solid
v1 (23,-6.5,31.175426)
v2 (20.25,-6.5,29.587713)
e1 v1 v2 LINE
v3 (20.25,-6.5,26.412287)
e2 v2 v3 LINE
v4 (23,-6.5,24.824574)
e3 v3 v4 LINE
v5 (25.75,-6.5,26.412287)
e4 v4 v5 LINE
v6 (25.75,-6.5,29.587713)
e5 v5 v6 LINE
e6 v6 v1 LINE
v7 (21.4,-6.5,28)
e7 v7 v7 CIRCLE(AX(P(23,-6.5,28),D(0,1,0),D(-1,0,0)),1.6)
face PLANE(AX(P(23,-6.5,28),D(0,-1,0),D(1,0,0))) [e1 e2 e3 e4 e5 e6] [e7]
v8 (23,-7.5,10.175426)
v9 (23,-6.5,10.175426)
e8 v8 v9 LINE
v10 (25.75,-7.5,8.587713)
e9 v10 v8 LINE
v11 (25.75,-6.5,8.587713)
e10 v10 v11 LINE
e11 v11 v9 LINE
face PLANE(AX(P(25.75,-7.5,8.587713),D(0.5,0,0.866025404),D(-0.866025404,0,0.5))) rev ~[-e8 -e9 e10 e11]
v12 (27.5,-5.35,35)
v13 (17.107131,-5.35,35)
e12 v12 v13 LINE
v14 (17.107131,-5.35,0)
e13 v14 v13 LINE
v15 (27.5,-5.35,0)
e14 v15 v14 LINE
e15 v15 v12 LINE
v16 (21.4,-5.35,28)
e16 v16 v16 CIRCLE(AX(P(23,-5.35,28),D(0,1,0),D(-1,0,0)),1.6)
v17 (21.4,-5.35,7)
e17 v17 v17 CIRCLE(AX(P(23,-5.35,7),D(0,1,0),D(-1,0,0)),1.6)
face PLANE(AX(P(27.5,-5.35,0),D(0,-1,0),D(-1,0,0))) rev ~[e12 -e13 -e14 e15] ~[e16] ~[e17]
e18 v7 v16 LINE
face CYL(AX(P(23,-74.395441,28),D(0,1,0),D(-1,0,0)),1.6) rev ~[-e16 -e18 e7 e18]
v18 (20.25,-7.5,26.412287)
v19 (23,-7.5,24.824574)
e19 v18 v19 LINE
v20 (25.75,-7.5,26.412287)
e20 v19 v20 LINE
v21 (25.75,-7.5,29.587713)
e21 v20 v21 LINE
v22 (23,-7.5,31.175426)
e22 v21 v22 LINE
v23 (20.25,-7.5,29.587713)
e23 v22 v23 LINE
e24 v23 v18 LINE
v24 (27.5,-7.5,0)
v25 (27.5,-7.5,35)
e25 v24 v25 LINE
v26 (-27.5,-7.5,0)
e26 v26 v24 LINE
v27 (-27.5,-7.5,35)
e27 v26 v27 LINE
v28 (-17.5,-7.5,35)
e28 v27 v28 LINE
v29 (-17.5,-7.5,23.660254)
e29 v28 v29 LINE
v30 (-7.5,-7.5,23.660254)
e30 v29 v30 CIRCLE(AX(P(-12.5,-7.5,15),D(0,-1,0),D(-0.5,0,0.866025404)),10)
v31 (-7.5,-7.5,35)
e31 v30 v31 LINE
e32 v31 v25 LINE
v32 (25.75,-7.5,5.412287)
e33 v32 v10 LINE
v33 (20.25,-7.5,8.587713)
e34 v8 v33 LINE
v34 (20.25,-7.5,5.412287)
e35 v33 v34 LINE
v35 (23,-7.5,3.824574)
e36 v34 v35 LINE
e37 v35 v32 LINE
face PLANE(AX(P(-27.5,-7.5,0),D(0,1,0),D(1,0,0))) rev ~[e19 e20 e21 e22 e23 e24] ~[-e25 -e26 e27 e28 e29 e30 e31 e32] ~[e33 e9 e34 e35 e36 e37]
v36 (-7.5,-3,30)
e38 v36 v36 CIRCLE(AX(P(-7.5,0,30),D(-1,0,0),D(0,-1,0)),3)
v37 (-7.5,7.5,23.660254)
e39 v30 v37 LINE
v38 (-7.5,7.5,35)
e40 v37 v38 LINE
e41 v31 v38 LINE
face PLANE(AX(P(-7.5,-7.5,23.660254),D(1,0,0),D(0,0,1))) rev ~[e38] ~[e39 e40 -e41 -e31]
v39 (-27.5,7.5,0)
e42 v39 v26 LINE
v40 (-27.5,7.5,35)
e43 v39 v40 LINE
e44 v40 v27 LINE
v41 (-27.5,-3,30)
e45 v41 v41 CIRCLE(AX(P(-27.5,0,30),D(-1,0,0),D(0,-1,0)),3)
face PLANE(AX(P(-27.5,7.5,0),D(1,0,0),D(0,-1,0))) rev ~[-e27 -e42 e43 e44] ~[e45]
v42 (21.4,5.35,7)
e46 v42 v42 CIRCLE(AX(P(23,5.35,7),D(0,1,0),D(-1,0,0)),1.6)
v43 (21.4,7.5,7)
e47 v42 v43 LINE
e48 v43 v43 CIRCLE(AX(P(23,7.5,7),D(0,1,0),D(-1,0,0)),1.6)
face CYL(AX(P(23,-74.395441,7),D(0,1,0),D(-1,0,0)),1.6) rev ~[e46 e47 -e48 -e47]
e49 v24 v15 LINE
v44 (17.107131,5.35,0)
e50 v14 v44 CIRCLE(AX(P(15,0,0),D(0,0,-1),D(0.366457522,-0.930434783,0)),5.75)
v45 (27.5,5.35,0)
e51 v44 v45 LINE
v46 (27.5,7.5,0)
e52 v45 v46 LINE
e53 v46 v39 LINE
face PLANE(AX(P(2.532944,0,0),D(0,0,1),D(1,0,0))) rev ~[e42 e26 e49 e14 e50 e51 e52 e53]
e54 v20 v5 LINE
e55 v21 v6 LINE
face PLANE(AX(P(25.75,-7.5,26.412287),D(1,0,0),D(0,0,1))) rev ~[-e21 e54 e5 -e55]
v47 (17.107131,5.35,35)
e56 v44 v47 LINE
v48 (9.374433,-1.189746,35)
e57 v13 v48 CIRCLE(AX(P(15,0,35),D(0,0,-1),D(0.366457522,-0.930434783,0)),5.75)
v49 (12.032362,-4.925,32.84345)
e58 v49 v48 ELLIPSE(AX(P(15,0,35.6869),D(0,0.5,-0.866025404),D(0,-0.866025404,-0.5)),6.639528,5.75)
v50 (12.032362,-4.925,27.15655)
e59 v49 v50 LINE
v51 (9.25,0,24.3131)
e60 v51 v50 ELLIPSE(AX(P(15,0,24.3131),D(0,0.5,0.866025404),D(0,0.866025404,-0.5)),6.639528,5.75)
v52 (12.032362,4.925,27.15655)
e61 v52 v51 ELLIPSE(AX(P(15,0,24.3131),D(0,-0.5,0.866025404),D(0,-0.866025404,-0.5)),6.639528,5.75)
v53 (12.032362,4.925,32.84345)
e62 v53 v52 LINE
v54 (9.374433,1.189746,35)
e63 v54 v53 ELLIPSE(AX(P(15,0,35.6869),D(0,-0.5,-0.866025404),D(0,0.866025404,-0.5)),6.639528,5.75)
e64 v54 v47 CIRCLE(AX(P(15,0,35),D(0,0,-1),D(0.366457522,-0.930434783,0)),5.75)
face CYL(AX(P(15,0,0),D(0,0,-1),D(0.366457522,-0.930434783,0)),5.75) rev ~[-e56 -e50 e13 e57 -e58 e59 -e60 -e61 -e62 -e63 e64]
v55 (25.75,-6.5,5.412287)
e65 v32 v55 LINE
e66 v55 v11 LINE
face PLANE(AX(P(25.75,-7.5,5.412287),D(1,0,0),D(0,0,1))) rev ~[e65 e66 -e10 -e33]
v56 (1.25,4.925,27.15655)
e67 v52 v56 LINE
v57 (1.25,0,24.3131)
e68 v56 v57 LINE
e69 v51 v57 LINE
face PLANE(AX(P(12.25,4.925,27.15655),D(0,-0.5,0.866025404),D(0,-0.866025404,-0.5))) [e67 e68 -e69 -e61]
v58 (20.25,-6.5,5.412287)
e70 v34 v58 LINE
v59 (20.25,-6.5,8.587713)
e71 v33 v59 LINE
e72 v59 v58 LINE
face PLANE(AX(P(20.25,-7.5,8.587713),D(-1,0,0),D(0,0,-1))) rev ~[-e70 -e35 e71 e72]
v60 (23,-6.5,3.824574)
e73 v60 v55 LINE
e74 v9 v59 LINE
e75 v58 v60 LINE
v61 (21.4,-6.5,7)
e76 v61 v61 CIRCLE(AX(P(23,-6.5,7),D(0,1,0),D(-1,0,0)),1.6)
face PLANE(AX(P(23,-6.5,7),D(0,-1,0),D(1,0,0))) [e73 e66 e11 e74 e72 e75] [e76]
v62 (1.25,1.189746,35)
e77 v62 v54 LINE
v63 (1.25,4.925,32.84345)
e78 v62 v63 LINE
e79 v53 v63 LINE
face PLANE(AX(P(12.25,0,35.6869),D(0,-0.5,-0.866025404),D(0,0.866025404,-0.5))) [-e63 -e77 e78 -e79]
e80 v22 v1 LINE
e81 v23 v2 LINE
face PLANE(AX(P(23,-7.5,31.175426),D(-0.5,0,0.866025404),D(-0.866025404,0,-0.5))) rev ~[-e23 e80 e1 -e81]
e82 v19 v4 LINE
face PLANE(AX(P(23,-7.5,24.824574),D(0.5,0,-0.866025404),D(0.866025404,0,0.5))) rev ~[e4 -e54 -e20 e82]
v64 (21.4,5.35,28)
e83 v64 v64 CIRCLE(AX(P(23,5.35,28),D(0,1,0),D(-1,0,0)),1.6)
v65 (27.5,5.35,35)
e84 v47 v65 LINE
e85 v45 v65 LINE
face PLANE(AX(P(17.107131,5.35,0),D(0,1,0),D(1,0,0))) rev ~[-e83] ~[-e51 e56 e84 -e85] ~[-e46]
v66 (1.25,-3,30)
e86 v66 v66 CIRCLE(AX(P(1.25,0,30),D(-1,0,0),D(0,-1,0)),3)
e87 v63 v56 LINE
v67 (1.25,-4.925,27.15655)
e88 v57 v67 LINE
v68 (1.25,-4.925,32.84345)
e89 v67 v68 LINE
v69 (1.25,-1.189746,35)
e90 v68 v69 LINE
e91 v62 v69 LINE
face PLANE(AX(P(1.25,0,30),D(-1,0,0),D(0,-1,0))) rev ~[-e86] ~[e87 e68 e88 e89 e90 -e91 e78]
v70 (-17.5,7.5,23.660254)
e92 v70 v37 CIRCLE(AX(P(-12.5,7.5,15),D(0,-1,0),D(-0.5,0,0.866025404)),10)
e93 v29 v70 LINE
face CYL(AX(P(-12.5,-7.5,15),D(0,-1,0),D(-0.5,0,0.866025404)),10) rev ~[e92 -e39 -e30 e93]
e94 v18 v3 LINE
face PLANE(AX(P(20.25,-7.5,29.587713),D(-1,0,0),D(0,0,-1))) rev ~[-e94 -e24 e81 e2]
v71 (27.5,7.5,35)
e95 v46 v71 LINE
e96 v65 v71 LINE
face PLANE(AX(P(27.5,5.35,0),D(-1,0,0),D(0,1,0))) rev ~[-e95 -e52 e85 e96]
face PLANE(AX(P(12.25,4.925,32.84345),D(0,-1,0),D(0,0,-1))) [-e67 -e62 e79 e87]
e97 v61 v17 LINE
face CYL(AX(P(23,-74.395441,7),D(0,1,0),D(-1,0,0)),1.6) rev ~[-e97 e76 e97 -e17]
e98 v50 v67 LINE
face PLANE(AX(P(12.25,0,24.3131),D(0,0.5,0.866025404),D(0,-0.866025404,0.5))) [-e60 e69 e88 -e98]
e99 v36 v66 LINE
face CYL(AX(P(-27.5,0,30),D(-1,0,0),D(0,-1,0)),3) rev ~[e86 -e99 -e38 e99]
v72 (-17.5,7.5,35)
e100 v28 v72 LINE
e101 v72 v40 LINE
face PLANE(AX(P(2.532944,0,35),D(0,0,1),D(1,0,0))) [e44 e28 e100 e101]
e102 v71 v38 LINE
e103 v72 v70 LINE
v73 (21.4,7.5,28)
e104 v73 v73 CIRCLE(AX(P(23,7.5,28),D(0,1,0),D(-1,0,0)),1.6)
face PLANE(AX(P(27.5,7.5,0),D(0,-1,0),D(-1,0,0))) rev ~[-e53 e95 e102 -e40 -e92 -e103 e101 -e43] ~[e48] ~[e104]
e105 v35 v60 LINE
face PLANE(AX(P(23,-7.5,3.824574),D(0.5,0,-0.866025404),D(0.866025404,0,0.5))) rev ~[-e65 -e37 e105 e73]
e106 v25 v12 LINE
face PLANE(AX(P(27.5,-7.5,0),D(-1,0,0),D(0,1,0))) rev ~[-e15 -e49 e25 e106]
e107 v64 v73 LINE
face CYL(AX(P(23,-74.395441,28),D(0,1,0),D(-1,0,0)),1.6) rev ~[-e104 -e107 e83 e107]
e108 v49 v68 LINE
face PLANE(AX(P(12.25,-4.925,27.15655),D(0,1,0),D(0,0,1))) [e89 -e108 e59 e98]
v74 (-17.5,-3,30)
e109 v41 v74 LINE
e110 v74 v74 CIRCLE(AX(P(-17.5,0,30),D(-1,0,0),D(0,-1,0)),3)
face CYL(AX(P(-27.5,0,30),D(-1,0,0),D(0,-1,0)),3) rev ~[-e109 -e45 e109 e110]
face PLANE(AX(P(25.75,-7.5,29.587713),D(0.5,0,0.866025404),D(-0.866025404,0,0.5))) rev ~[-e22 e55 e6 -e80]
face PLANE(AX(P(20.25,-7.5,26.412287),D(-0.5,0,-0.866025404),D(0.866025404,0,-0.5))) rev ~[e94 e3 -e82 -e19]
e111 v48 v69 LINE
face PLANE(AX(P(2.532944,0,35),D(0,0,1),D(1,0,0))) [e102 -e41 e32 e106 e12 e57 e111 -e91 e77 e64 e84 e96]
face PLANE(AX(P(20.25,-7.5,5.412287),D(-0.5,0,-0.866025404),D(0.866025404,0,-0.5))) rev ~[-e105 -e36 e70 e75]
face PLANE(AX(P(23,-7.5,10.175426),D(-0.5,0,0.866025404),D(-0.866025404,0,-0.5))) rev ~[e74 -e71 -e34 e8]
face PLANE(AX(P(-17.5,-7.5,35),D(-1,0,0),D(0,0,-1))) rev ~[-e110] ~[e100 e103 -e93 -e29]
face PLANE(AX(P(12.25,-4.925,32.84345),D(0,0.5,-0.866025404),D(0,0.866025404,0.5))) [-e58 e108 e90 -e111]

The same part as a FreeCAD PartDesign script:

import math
import FreeCAD as App
import Part
import Sketcher

V = App.Vector
Q = App.Units.Quantity

doc = App.newDocument("Part")
body = doc.addObject("PartDesign::Body", "Body")

# Sketch on XY plane
sketch1 = body.newObject("Sketcher::SketchObject", "Sketch")
sketch1.AttachmentSupport = (doc.getObject("XY_Plane"), [""])
sketch1.MapMode = "FlatFace"
sketch1.addGeometry([
    Part.LineSegment(V(27.5, 5.3, 0), V(27.5, 7.5, 0)),  # 0
    Part.LineSegment(V(27.5, 7.5, 0), V(-27.5, 7.5, 0)),  # 1
    Part.LineSegment(V(-27.5, 7.5, 0), V(-27.5, -7.5, 0)),  # 2
    Part.LineSegment(V(-27.5, -7.5, 0), V(27.5, -7.5, 0)),  # 3
    Part.LineSegment(V(27.5, -7.5, 0), V(27.5, -5.3, 0)),  # 4
    Part.LineSegment(V(27.5, -5.3, 0), V(17.1, -5.3, 0)),  # 5
    Part.ArcOfCircle(Part.Circle(V(15, 0, 0), V(0, 0, 1), 5.8), math.radians(69), math.radians(291)),  # 6
    Part.LineSegment(V(17.1, 5.3, 0), V(27.5, 5.3, 0)),  # 7
], False)
sketch1.addConstraint([
    Sketcher.Constraint("Coincident", 0, 2, 1, 1),
    Sketcher.Constraint("Coincident", 1, 2, 2, 1),
    Sketcher.Constraint("Coincident", 2, 2, 3, 1),
    Sketcher.Constraint("Coincident", 3, 2, 4, 1),
    Sketcher.Constraint("Coincident", 4, 2, 5, 1),
    Sketcher.Constraint("Coincident", 5, 2, 6, 2),
    Sketcher.Constraint("Coincident", 6, 1, 7, 1),
    Sketcher.Constraint("Coincident", 7, 2, 0, 1),
    Sketcher.Constraint("Vertical", 0),
    Sketcher.Constraint("Horizontal", 1),
    Sketcher.Constraint("Vertical", 2),
    Sketcher.Constraint("Horizontal", 3),
    Sketcher.Constraint("Vertical", 4),
    Sketcher.Constraint("Horizontal", 5),
    Sketcher.Constraint("Horizontal", 7),
    Sketcher.Constraint("Symmetric", 0, 2, 2, 2, -1, 1),
    Sketcher.Constraint("Symmetric", 5, 2, 6, 1, -1),
    Sketcher.Constraint("Vertical", 0, 2, 3, 2),
    Sketcher.Constraint("DistanceX", 1, 2, 1, 1, Q("55 mm")),
    Sketcher.Constraint("DistanceY", 2, 2, 2, 1, Q("15 mm")),
    Sketcher.Constraint("Radius", 6, Q("5.75 mm")),
    Sketcher.Constraint("DistanceX", -1, 1, 6, 3, Q("15 mm")),
    Sketcher.Constraint("DistanceY", 0, 1, 0, 2, Q("2.15 mm")),
])
pad1 = body.newObject("PartDesign::Pad", "Pad")
pad1.Profile = sketch1
pad1.Length = 35

# Sketch on XZ plane
sketch2 = body.newObject("Sketcher::SketchObject", "Sketch001")
sketch2.AttachmentSupport = (doc.getObject("XZ_Plane"), [""])
sketch2.MapMode = "FlatFace"
sketch2.AttachmentOffset = App.Placement(V(0, 0, 7.5), App.Rotation())
sketch2.addGeometry([
    Part.LineSegment(V(-18, 35, 0), V(-18, 24, 0)),
    Part.ArcOfCircle(Part.Circle(V(-12, 15, 0), V(0, 0, 1), 10), math.radians(120), math.radians(420)),
    Part.LineSegment(V(-8, 24, 0), V(-8, 35, 0)),
    Part.LineSegment(V(-8, 35, 0), V(-18, 35, 0)),
], False)
sketch2.addConstraint([
    Sketcher.Constraint("Coincident", 0, 2, 1, 1),
    Sketcher.Constraint("Coincident", 1, 2, 2, 1),
    Sketcher.Constraint("Coincident", 2, 2, 3, 1),
    Sketcher.Constraint("Coincident", 3, 2, 0, 1),
    Sketcher.Constraint("Vertical", 0),
    Sketcher.Constraint("Vertical", 2),
    Sketcher.Constraint("Horizontal", 3),
    Sketcher.Constraint("Horizontal", 0, 2, 1, 2),
    Sketcher.Constraint("Radius", 1, Q("10 mm")),
    Sketcher.Constraint("DistanceX", 3, 2, 3, 1, Q("10 mm")),
    Sketcher.Constraint("DistanceY", -1, 1, 1, 3, Q("15 mm")),
    Sketcher.Constraint("DistanceY", -1, 1, 2, 2, Q("35 mm")),
    Sketcher.Constraint("DistanceX", 1, 3, -1, 1, Q("12.5 mm")),
])
pocket1 = body.newObject("PartDesign::Pocket", "Pocket")
pocket1.Profile = sketch2
pocket1.Type = "ThroughAll"

# Sketch on XZ plane
sketch3 = body.newObject("Sketcher::SketchObject", "Sketch002")
sketch3.AttachmentSupport = (doc.getObject("XZ_Plane"), [""])
sketch3.MapMode = "FlatFace"
sketch3.AttachmentOffset = App.Placement(V(0, 0, 7.5), App.Rotation())
sketch3.addGeometry([
    Part.Circle(V(23, 28, 0), V(0, 0, 1), 1.6),
    Part.Circle(V(23, 7, 0), V(0, 0, 1), 1.6),
], False)
sketch3.addConstraint([
    Sketcher.Constraint("Equal", 0, 1),
    Sketcher.Constraint("Vertical", 0, 3, 1, 3),
    Sketcher.Constraint("Diameter", 0, Q("3.2 mm")),
    Sketcher.Constraint("DistanceX", -1, 1, 0, 3, Q("23 mm")),
    Sketcher.Constraint("DistanceY", -1, 1, 0, 3, Q("28 mm")),
    Sketcher.Constraint("DistanceY", -1, 1, 1, 3, Q("7 mm")),
])
doc.recompute()
hole = body.newObject("PartDesign::Hole", "Hole")
hole.Profile = sketch3
hole.ThreadType = "None"
hole.Diameter = 3.2
hole.DepthType = "ThroughAll"

# Sketch on XZ plane
sketch4 = body.newObject("Sketcher::SketchObject", "Sketch003")
sketch4.AttachmentSupport = (doc.getObject("XZ_Plane"), [""])
sketch4.MapMode = "FlatFace"
sketch4.AttachmentOffset = App.Placement(V(0, 0, 7.5), App.Rotation())
sketch4.addGeometry([
    Part.LineSegment(V(25.8, 29.6, 0), V(23, 31.2, 0)),  # 0
    Part.LineSegment(V(23, 31.2, 0), V(20.2, 29.6, 0)),  # 1
    Part.LineSegment(V(20.2, 29.6, 0), V(20.2, 26.4, 0)),  # 2
    Part.LineSegment(V(20.2, 26.4, 0), V(23, 24.8, 0)),  # 3
    Part.LineSegment(V(23, 24.8, 0), V(25.8, 26.4, 0)),  # 4
    Part.LineSegment(V(25.8, 26.4, 0), V(25.8, 29.6, 0)),  # 5
    Part.LineSegment(V(25.8, 8.6, 0), V(23, 10.2, 0)),  # 6
    Part.LineSegment(V(23, 10.2, 0), V(20.2, 8.6, 0)),  # 7
    Part.LineSegment(V(20.2, 8.6, 0), V(20.2, 5.4, 0)),  # 8
    Part.LineSegment(V(20.2, 5.4, 0), V(23, 3.8, 0)),  # 9
    Part.LineSegment(V(23, 3.8, 0), V(25.8, 5.4, 0)),  # 10
    Part.LineSegment(V(25.8, 5.4, 0), V(25.8, 8.6, 0)),  # 11
], False)
sketch4.addConstraint([
    Sketcher.Constraint("Coincident", 0, 2, 1, 1),
    Sketcher.Constraint("Coincident", 1, 2, 2, 1),
    Sketcher.Constraint("Coincident", 2, 2, 3, 1),
    Sketcher.Constraint("Coincident", 3, 2, 4, 1),
    Sketcher.Constraint("Coincident", 4, 2, 5, 1),
    Sketcher.Constraint("Coincident", 5, 2, 0, 1),
    Sketcher.Constraint("Coincident", 6, 2, 7, 1),
    Sketcher.Constraint("Coincident", 7, 2, 8, 1),
    Sketcher.Constraint("Coincident", 8, 2, 9, 1),
    Sketcher.Constraint("Coincident", 9, 2, 10, 1),
    Sketcher.Constraint("Coincident", 10, 2, 11, 1),
    Sketcher.Constraint("Coincident", 11, 2, 6, 1),
    Sketcher.Constraint("Vertical", 2),
    Sketcher.Constraint("Vertical", 5),
    Sketcher.Constraint("Vertical", 8),
    Sketcher.Constraint("Vertical", 11),
    Sketcher.Constraint("Parallel", 0, 3),
    Sketcher.Constraint("Parallel", 1, 4),
    Sketcher.Constraint("Parallel", 3, 6),
    Sketcher.Constraint("Parallel", 4, 7),
    Sketcher.Constraint("Parallel", 6, 9),
    Sketcher.Constraint("Parallel", 7, 10),
    Sketcher.Constraint("Horizontal", 2, 2, 4, 2),
    Sketcher.Constraint("Horizontal", 1, 2, 5, 2),
    Sketcher.Constraint("Horizontal", 8, 2, 10, 2),
    Sketcher.Constraint("Horizontal", 7, 2, 11, 2),
    Sketcher.Constraint("Vertical", 0, 2, 3, 2),
    Sketcher.Constraint("Vertical", 3, 2, 6, 2),
    Sketcher.Constraint("Vertical", 2, 2, 7, 2),
    Sketcher.Constraint("Equal", 5, 8),
    Sketcher.Constraint("Angle", 0, Q("150 deg")),
    Sketcher.Constraint("DistanceX", -1, 1, 0, 2, Q("23 mm")),
    Sketcher.Constraint("DistanceY", 7, 2, 1, 2, Q("21 mm")),
    Sketcher.Constraint("DistanceX", 2, 2, 4, 2, Q("5.5 mm")),
    Sketcher.Constraint("DistanceY", 2, 2, 2, 1, Q("3.175426 mm")),
    Sketcher.Constraint("DistanceY", -1, 1, 0, 2, Q("31.175426 mm")),
])
pocket2 = body.newObject("PartDesign::Pocket", "Pocket001")
pocket2.Profile = sketch4
pocket2.Length = 1

# Sketch on YZ plane
sketch5 = body.newObject("Sketcher::SketchObject", "Sketch004")
sketch5.AttachmentSupport = (doc.getObject("YZ_Plane"), [""])
sketch5.MapMode = "FlatFace"
sketch5.AttachmentOffset = App.Placement(V(0, 0, -27.5), App.Rotation())
sketch5.addGeometry(Part.Circle(V(0, 30, 0), V(0, 0, 1), 3), False)
sketch5.addConstraint([
    Sketcher.Constraint("PointOnObject", 0, 3, -2),
    Sketcher.Constraint("Diameter", 0, Q("6 mm")),
    Sketcher.Constraint("DistanceY", -1, 1, 0, 3, Q("30 mm")),
])
pocket3 = body.newObject("PartDesign::Pocket", "Pocket002")
pocket3.Profile = sketch5
pocket3.Type = "ThroughAll"
pocket3.Reversed = True

# Sketch on YZ plane
sketch6 = body.newObject("Sketcher::SketchObject", "Sketch005")
sketch6.AttachmentSupport = (doc.getObject("YZ_Plane"), [""])
sketch6.MapMode = "FlatFace"
sketch6.AttachmentOffset = App.Placement(V(0, 0, 12.25), App.Rotation())
sketch6.addGeometry([
    Part.LineSegment(V(0, 36, 0), V(5, 33, 0)),  # 0
    Part.LineSegment(V(5, 33, 0), V(5, 27, 0)),  # 1
    Part.LineSegment(V(5, 27, 0), V(0, 24, 0)),  # 2
    Part.LineSegment(V(0, 24, 0), V(-5, 27, 0)),  # 3
    Part.LineSegment(V(-5, 27, 0), V(-5, 33, 0)),  # 4
    Part.LineSegment(V(-5, 33, 0), V(0, 36, 0)),  # 5
], False)
sketch6.addConstraint([
    Sketcher.Constraint("Coincident", 0, 2, 1, 1),
    Sketcher.Constraint("Coincident", 1, 2, 2, 1),
    Sketcher.Constraint("Coincident", 2, 2, 3, 1),
    Sketcher.Constraint("Coincident", 3, 2, 4, 1),
    Sketcher.Constraint("Coincident", 4, 2, 5, 1),
    Sketcher.Constraint("Coincident", 5, 2, 0, 1),
    Sketcher.Constraint("Vertical", 1),
    Sketcher.Constraint("Vertical", 4),
    Sketcher.Constraint("Symmetric", 1, 2, 3, 2, -2),
    Sketcher.Constraint("PointOnObject", 2, 2, -2),
    Sketcher.Constraint("PointOnObject", 5, 2, -2),
    Sketcher.Constraint("Parallel", 0, 3),
    Sketcher.Constraint("Parallel", 2, 5),
    Sketcher.Constraint("Angle", 0, Q("-30 deg")),
    Sketcher.Constraint("DistanceX", 3, 2, 1, 2, Q("9.85 mm")),
    Sketcher.Constraint("DistanceY", 1, 2, 1, 1, Q("5.6869 mm")),
    Sketcher.Constraint("DistanceY", -1, 1, 2, 2, Q("24.3131 mm")),
])
pocket4 = body.newObject("PartDesign::Pocket", "Pocket003")
pocket4.Profile = sketch6
pocket4.Length = 11

doc.recompute()
